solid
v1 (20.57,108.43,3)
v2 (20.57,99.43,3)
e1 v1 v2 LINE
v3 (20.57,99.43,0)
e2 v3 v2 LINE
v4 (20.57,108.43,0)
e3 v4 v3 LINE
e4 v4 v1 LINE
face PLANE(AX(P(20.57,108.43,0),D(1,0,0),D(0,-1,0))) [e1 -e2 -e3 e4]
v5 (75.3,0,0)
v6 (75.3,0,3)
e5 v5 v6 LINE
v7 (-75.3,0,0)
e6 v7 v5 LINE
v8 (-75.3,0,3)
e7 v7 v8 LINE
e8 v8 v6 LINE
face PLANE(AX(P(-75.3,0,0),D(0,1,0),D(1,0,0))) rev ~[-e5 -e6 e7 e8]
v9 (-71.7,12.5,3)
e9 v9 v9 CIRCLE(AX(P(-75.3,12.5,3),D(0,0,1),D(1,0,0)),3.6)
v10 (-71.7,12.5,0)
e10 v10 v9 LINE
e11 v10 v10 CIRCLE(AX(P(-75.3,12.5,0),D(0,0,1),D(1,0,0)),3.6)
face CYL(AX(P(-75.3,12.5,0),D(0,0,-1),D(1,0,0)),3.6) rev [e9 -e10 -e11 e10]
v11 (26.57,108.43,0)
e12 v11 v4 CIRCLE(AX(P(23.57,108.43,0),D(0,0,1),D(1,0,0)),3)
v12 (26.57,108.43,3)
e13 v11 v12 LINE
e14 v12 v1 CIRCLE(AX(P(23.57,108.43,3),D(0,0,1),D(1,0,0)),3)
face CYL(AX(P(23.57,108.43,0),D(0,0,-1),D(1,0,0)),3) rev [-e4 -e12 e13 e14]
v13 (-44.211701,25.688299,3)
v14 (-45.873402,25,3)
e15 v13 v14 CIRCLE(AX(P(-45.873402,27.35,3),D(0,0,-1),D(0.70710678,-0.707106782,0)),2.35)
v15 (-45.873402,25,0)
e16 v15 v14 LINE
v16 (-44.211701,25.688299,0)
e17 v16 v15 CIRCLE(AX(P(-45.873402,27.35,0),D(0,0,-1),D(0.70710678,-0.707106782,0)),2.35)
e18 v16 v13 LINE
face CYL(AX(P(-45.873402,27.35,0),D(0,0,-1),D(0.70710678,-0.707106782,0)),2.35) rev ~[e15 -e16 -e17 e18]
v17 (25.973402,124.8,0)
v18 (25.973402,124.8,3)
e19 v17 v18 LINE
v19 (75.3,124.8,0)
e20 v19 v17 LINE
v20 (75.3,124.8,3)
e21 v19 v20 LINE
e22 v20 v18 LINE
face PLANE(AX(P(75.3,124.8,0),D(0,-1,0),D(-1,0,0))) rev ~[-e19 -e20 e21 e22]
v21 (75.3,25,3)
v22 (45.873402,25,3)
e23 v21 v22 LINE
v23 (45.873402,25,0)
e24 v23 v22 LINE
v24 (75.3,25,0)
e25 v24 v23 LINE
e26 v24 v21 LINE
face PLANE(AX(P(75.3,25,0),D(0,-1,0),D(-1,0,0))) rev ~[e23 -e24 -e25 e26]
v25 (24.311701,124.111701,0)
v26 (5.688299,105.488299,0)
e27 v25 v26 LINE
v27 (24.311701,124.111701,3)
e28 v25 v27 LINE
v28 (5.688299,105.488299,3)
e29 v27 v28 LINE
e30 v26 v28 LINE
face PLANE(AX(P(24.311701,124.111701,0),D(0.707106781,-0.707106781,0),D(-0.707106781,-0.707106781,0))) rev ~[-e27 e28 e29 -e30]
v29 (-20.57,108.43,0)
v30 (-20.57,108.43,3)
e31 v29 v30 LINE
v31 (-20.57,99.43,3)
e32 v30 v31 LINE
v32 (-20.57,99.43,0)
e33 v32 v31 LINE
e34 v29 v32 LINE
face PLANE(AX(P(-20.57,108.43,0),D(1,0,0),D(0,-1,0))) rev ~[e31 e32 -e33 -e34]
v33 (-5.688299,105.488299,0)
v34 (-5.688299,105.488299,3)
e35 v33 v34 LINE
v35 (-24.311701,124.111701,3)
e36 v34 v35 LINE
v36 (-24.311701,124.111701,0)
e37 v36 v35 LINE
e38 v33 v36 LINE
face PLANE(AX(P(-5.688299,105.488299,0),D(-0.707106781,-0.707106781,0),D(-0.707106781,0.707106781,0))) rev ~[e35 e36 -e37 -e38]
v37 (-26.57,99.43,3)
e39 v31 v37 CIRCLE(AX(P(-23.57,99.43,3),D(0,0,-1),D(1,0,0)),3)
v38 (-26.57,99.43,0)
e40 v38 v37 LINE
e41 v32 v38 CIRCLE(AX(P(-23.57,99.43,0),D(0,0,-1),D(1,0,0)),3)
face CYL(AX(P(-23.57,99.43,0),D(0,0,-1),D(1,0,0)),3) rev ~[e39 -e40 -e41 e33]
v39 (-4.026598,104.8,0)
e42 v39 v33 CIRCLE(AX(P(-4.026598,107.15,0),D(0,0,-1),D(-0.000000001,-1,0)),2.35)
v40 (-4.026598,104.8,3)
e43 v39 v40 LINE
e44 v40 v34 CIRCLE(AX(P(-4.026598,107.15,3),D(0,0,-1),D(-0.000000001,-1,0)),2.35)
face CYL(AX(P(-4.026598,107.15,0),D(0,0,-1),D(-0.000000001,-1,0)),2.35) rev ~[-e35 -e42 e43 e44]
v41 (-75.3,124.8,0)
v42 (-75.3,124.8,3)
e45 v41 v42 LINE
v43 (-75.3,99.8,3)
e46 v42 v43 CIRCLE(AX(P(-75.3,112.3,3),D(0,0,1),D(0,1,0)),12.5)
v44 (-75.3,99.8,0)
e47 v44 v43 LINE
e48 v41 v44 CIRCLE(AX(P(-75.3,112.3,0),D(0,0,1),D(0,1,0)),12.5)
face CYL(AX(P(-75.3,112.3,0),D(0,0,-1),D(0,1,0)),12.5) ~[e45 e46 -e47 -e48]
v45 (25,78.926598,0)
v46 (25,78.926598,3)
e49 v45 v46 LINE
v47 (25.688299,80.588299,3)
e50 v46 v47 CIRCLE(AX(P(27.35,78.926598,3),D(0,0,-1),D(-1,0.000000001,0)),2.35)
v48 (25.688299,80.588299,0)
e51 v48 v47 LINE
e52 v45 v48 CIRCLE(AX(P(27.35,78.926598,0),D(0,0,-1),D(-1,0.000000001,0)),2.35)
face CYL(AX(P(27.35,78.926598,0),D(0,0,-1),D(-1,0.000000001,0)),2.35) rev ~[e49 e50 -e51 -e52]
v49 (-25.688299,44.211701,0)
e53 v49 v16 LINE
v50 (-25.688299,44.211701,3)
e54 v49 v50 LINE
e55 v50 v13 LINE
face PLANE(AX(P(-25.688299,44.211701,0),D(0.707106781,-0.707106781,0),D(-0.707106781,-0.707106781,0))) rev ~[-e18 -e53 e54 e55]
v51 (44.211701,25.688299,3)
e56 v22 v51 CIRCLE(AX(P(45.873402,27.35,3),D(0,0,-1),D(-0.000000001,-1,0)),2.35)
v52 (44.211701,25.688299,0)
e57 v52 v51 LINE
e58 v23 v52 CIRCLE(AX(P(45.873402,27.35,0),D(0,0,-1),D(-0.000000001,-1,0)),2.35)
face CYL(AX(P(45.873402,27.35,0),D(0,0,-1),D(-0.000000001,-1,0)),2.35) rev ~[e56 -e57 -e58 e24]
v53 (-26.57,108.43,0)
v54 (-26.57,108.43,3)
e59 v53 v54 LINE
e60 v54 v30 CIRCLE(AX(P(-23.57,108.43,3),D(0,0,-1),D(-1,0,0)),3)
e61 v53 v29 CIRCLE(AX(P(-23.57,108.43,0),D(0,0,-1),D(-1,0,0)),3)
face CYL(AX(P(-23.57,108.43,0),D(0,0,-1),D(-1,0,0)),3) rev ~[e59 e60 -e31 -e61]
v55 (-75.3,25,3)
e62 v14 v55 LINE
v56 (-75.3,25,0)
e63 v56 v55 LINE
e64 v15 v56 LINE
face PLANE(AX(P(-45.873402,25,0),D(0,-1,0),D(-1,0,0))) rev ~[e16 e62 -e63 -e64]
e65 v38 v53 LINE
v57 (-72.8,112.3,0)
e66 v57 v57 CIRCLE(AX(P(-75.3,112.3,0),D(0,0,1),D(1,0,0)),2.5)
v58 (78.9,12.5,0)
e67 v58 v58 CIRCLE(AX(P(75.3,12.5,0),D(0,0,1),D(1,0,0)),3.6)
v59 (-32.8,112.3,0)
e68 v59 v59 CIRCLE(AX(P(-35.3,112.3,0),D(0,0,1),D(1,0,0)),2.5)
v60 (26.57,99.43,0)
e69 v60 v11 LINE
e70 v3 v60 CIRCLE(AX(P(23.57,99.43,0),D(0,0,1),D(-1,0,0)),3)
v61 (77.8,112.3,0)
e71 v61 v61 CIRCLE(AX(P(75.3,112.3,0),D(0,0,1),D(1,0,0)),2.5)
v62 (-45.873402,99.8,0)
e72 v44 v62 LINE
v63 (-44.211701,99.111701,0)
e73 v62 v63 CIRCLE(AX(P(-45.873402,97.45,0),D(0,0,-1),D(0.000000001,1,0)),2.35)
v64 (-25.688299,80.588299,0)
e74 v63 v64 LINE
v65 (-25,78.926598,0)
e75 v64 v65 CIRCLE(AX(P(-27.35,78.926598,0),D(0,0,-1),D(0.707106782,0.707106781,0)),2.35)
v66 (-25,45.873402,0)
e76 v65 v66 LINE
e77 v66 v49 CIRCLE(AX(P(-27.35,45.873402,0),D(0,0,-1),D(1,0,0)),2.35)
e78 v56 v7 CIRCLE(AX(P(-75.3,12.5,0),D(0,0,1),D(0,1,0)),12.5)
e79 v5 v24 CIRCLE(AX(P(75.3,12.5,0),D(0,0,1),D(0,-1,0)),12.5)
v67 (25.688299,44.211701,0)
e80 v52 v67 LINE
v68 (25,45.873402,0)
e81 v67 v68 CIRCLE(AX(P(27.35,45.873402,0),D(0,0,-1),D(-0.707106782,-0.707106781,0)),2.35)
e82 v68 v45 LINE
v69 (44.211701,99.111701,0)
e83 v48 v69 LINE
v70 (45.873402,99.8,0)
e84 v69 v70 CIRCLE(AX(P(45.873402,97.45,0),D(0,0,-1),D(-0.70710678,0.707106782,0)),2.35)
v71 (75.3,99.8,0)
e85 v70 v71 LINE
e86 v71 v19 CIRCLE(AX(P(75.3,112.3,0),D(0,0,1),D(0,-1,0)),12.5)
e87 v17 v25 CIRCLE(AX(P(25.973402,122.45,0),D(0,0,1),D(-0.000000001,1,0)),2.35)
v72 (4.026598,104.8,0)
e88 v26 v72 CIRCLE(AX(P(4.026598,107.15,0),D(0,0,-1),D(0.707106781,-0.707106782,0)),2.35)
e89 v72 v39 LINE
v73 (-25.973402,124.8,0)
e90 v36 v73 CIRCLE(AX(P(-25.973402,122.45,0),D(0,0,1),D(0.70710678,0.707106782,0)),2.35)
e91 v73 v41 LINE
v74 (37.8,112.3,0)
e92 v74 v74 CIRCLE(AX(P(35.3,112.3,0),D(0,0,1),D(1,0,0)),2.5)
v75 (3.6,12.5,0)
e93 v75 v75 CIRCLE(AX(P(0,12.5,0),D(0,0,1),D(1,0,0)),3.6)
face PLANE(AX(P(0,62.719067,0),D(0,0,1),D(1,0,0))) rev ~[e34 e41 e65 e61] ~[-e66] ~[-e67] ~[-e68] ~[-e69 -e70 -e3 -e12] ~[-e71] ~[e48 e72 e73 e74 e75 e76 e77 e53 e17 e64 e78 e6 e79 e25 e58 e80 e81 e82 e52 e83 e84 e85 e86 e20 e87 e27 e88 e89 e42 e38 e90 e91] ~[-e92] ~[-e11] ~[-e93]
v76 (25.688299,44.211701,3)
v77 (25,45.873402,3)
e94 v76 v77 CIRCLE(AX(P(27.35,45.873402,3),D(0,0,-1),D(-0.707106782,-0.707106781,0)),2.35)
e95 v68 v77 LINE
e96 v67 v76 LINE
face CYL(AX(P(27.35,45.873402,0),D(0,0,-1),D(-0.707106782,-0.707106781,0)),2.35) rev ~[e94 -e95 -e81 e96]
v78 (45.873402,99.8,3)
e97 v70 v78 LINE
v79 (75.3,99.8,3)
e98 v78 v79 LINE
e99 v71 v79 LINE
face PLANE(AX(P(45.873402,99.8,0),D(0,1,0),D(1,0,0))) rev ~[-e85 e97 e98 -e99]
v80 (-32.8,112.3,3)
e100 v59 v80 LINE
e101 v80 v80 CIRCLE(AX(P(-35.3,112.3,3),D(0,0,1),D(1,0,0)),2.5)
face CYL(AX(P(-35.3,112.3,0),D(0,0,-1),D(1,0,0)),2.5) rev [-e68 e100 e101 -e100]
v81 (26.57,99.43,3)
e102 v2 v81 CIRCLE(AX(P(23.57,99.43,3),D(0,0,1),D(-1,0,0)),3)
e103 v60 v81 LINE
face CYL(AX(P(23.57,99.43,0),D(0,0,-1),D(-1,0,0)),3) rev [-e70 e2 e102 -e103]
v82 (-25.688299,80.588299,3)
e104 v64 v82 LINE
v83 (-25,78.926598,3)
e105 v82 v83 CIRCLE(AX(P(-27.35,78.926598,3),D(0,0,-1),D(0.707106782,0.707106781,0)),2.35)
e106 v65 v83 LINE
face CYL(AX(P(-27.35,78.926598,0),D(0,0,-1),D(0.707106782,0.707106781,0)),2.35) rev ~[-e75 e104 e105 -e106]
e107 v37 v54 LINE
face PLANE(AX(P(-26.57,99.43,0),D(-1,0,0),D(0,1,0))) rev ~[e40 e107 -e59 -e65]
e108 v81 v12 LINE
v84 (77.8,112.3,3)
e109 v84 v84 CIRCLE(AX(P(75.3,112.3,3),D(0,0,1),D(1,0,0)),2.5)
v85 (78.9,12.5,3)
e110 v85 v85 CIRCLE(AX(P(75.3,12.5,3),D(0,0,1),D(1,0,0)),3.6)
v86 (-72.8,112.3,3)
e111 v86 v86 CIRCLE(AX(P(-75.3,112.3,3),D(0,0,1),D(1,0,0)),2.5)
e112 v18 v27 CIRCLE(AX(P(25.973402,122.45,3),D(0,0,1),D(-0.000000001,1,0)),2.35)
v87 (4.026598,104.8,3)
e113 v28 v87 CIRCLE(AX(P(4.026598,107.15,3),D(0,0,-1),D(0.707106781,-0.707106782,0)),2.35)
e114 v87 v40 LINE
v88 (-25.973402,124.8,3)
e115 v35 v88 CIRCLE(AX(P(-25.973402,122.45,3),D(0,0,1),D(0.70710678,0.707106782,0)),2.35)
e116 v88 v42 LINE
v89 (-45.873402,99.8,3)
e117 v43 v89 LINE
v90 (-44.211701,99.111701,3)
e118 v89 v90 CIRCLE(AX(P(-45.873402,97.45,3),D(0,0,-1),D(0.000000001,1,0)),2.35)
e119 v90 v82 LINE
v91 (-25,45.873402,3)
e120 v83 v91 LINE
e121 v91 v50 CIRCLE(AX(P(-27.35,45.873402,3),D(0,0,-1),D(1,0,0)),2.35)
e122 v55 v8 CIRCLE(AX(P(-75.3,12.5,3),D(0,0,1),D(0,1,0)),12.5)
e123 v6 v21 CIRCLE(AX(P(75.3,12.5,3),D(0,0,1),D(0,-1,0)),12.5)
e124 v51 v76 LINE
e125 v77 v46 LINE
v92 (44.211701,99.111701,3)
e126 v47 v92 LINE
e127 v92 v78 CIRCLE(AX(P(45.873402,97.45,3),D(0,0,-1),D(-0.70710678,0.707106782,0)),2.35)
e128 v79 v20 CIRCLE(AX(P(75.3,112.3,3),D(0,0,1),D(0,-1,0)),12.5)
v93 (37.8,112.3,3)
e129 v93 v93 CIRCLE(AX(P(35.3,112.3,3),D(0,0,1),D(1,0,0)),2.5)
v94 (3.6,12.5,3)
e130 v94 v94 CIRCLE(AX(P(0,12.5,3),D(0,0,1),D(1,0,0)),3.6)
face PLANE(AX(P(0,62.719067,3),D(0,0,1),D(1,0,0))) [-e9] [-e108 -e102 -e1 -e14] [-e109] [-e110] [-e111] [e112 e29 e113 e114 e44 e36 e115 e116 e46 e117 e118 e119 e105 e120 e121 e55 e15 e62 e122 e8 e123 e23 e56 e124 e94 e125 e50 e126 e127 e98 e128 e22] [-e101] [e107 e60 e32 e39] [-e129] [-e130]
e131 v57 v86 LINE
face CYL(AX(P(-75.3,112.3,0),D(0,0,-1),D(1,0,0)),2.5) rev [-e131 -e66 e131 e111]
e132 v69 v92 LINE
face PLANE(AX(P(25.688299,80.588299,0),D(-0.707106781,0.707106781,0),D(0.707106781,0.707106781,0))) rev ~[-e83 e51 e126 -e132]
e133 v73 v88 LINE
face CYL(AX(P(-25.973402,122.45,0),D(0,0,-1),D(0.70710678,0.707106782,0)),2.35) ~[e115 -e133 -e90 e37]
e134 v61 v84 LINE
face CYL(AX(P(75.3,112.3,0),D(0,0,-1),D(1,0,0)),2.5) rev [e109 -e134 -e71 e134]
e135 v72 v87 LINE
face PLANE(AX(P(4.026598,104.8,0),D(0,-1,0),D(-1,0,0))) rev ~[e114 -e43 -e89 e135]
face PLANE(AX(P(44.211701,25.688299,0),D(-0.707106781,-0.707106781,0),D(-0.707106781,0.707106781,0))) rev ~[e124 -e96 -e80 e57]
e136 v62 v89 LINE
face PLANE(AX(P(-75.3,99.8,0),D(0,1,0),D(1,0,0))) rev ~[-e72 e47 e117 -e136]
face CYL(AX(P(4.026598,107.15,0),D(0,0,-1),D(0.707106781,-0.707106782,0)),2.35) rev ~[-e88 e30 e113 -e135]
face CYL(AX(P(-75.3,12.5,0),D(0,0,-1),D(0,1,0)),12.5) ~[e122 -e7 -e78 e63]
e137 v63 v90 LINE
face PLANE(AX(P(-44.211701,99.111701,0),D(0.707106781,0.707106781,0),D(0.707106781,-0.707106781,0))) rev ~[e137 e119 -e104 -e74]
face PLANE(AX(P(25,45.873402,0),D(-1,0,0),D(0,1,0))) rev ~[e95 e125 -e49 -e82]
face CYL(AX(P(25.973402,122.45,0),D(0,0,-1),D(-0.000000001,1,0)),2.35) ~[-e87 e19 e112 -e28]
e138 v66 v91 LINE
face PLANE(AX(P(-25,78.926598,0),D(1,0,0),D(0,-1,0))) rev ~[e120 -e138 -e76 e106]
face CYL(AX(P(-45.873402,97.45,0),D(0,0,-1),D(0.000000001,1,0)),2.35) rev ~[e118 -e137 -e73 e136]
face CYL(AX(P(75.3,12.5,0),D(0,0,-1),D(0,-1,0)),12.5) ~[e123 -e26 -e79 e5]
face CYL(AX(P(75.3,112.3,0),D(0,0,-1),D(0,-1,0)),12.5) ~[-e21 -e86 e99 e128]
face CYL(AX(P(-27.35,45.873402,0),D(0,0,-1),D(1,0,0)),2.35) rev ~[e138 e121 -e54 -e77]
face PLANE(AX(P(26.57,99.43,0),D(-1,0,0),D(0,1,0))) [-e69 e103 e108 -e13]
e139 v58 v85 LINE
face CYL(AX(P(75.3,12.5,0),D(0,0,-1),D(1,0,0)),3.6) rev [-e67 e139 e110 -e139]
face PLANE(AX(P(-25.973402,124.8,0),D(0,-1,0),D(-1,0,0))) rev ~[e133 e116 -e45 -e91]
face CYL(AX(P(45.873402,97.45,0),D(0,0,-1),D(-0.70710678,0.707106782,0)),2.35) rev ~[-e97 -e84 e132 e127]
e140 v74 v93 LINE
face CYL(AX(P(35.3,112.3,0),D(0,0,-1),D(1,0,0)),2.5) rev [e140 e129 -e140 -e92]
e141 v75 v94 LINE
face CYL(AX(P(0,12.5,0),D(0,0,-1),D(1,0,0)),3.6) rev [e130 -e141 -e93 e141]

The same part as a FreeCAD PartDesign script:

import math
import FreeCAD as App
import Part
import Sketcher

V = App.Vector

doc = App.newDocument("Part")
body = doc.addObject("PartDesign::Body", "Body")

# Sketch on XY plane
sketch1 = body.newObject("Sketcher::SketchObject", "Sketch")
sketch1.AttachmentSupport = (doc.getObject("XY_Plane"), [""])
sketch1.MapMode = "FlatFace"
sketch1.addGeometry([
    Part.LineSegment(V(-75.3, 0, 0), V(75.3, 0, 0)),  # 0
    Part.ArcOfCircle(Part.Circle(V(75.3, 12.5, 0), V(0, 0, 1), 12.5), math.radians(-90), math.radians(90)),  # 1
    Part.LineSegment(V(75.3, 25, 0), V(45.873402, 25, 0)),  # 2
    Part.ArcOfCircle(Part.Circle(V(45.873402, 27.35, 0), V(0, 0, 1), 2.35), math.radians(-135), math.radians(-90)),  # 3
    Part.LineSegment(V(44.211701, 25.688299, 0), V(25.688299, 44.211701, 0)),  # 4
    Part.ArcOfCircle(Part.Circle(V(27.35, 45.873402, 0), V(0, 0, 1), 2.35), math.radians(180), math.radians(225)),  # 5
    Part.LineSegment(V(25, 45.873402, 0), V(25, 78.926598, 0)),  # 6
    Part.ArcOfCircle(Part.Circle(V(27.35, 78.926598, 0), V(0, 0, 1), 2.35), math.radians(135), math.radians(180)),  # 7
    Part.LineSegment(V(25.688299, 80.588299, 0), V(44.211701, 99.111701, 0)),  # 8
    Part.ArcOfCircle(Part.Circle(V(45.873402, 97.45, 0), V(0, 0, 1), 2.35), math.radians(90), math.radians(135)),  # 9
    Part.LineSegment(V(45.873402, 99.8, 0), V(75.3, 99.8, 0)),  # 10
    Part.ArcOfCircle(Part.Circle(V(75.3, 112.3, 0), V(0, 0, 1), 12.5), math.radians(-90), math.radians(90)),  # 11
    Part.LineSegment(V(75.3, 124.8, 0), V(25.973402, 124.8, 0)),  # 12
    Part.ArcOfCircle(Part.Circle(V(25.973402, 122.45, 0), V(0, 0, 1), 2.35), math.radians(90), math.radians(135)),  # 13
    Part.LineSegment(V(24.311701, 124.111701, 0), V(5.688299, 105.488299, 0)),  # 14
    Part.ArcOfCircle(Part.Circle(V(4.026598, 107.15, 0), V(0, 0, 1), 2.35), math.radians(-90), math.radians(-45)),  # 15
    Part.LineSegment(V(4.026598, 104.8, 0), V(-4.026598, 104.8, 0)),  # 16
    Part.ArcOfCircle(Part.Circle(V(-4.026598, 107.15, 0), V(0, 0, 1), 2.35), math.radians(-135), math.radians(-90)),  # 17
    Part.LineSegment(V(-5.688299, 105.488299, 0), V(-24.311701, 124.111701, 0)),  # 18
    Part.ArcOfCircle(Part.Circle(V(-25.973402, 122.45, 0), V(0, 0, 1), 2.35), math.radians(45), math.radians(90)),  # 19
    Part.LineSegment(V(-25.973402, 124.8, 0), V(-75.3, 124.8, 0)),  # 20
    Part.ArcOfCircle(Part.Circle(V(-75.3, 112.3, 0), V(0, 0, 1), 12.5), math.radians(90), math.radians(270)),  # 21
    Part.LineSegment(V(-75.3, 99.8, 0), V(-45.873402, 99.8, 0)),  # 22
    Part.ArcOfCircle(Part.Circle(V(-45.873402, 97.45, 0), V(0, 0, 1), 2.35), math.radians(45), math.radians(90)),  # 23
    Part.LineSegment(V(-44.211701, 99.111701, 0), V(-25.688299, 80.588299, 0)),  # 24
    Part.ArcOfCircle(Part.Circle(V(-27.35, 78.926598, 0), V(0, 0, 1), 2.35), math.radians(0), math.radians(45)),  # 25
    Part.LineSegment(V(-25, 78.926598, 0), V(-25, 45.873402, 0)),  # 26
    Part.ArcOfCircle(Part.Circle(V(-27.35, 45.873402, 0), V(0, 0, 1), 2.35), math.radians(-45), math.radians(0)),  # 27
    Part.LineSegment(V(-25.688299, 44.211701, 0), V(-44.211701, 25.688299, 0)),  # 28
    Part.ArcOfCircle(Part.Circle(V(-45.873402, 27.35, 0), V(0, 0, 1), 2.35), math.radians(-90), math.radians(-45)),  # 29
    Part.LineSegment(V(-45.873402, 25, 0), V(-75.3, 25, 0)),  # 30
    Part.ArcOfCircle(Part.Circle(V(-75.3, 12.5, 0), V(0, 0, 1), 12.5), math.radians(90), math.radians(270)),  # 31
    Part.Circle(V(-75.3, 12.5, 0), V(0, 0, 1), 3.6),  # 32
    Part.Circle(V(0, 12.5, 0), V(0, 0, 1), 3.6),  # 33
    Part.Circle(V(75.3, 12.5, 0), V(0, 0, 1), 3.6),  # 34
    Part.Circle(V(-75.3, 112.3, 0), V(0, 0, 1), 2.5),  # 35
    Part.ArcOfCircle(Part.Circle(V(-23.57, 99.43, 0), V(0, 0, 1), 3), math.radians(180), math.radians(360)),  # 36
    Part.LineSegment(V(-26.57, 99.43, 0), V(-26.57, 108.43, 0)),  # 37
    Part.ArcOfCircle(Part.Circle(V(-23.57, 108.43, 0), V(0, 0, 1), 3), math.radians(0), math.radians(180)),  # 38
    Part.LineSegment(V(-20.57, 108.43, 0), V(-20.57, 99.43, 0)),  # 39
    Part.Circle(V(-35.3, 112.3, 0), V(0, 0, 1), 2.5),  # 40
    Part.LineSegment(V(26.57, 108.43, 0), V(26.57, 99.43, 0)),  # 41
    Part.ArcOfCircle(Part.Circle(V(23.57, 99.43, 0), V(0, 0, 1), 3), math.radians(180), math.radians(360)),  # 42
    Part.LineSegment(V(20.57, 99.43, 0), V(20.57, 108.43, 0)),  # 43
    Part.ArcOfCircle(Part.Circle(V(23.57, 108.43, 0), V(0, 0, 1), 3), math.radians(0), math.radians(180)),  # 44
    Part.Circle(V(35.3, 112.3, 0), V(0, 0, 1), 2.5),  # 45
    Part.Circle(V(75.3, 112.3, 0), V(0, 0, 1), 2.5),  # 46
], False)
sketch1.addConstraint([
    Sketcher.Constraint("Tangent", 0, 2, 1, 1),
    Sketcher.Constraint("Tangent", 1, 2, 2, 1),
    Sketcher.Constraint("Tangent", 2, 2, 3, 2),
    Sketcher.Constraint("Tangent", 3, 1, 4, 1),
    Sketcher.Constraint("Tangent", 4, 2, 5, 2),
    Sketcher.Constraint("Tangent", 5, 1, 6, 1),
    Sketcher.Constraint("Tangent", 6, 2, 7, 2),
    Sketcher.Constraint("Tangent", 7, 1, 8, 1),
    Sketcher.Constraint("Tangent", 8, 2, 9, 2),
    Sketcher.Constraint("Tangent", 9, 1, 10, 1),
    Sketcher.Constraint("Tangent", 10, 2, 11, 1),
    Sketcher.Constraint("Tangent", 11, 2, 12, 1),
    Sketcher.Constraint("Tangent", 12, 2, 13, 1),
    Sketcher.Constraint("Tangent", 13, 2, 14, 1),
    Sketcher.Constraint("Tangent", 14, 2, 15, 2),
    Sketcher.Constraint("Tangent", 15, 1, 16, 1),
    Sketcher.Constraint("Tangent", 16, 2, 17, 2),
    Sketcher.Constraint("Tangent", 17, 1, 18, 1),
    Sketcher.Constraint("Tangent", 18, 2, 19, 1),
    Sketcher.Constraint("Tangent", 19, 2, 20, 1),
    Sketcher.Constraint("Tangent", 20, 2, 21, 1),
    Sketcher.Constraint("Tangent", 21, 2, 22, 1),
    Sketcher.Constraint("Tangent", 22, 2, 23, 2),
    Sketcher.Constraint("Tangent", 23, 1, 24, 1),
    Sketcher.Constraint("Tangent", 24, 2, 25, 2),
    Sketcher.Constraint("Tangent", 25, 1, 26, 1),
    Sketcher.Constraint("Tangent", 26, 2, 27, 2),
    Sketcher.Constraint("Tangent", 27, 1, 28, 1),
    Sketcher.Constraint("Tangent", 28, 2, 29, 2),
    Sketcher.Constraint("Tangent", 29, 1, 30, 1),
    Sketcher.Constraint("Tangent", 30, 2, 31, 1),
    Sketcher.Constraint("Tangent", 31, 2, 0, 1),
    Sketcher.Constraint("Tangent", 36, 1, 37, 1),
    Sketcher.Constraint("Tangent", 37, 2, 38, 2),
    Sketcher.Constraint("Tangent", 38, 1, 39, 1),
    Sketcher.Constraint("Tangent", 39, 2, 36, 2),
    Sketcher.Constraint("Tangent", 41, 2, 42, 2),
    Sketcher.Constraint("Tangent", 42, 1, 43, 1),
    Sketcher.Constraint("Tangent", 43, 2, 44, 2),
    Sketcher.Constraint("Tangent", 44, 1, 41, 1),
    Sketcher.Constraint("Horizontal", 0),
    Sketcher.Constraint("Horizontal", 2),
    Sketcher.Constraint("Vertical", 6),
    Sketcher.Constraint("Horizontal", 10),
    Sketcher.Constraint("Horizontal", 12),
    Sketcher.Constraint("Horizontal", 16),
    Sketcher.Constraint("Horizontal", 20),
    Sketcher.Constraint("Horizontal", 22),
    Sketcher.Constraint("Vertical", 26),
    Sketcher.Constraint("Horizontal", 30),
    Sketcher.Constraint("Vertical", 37),
    Sketcher.Constraint("Vertical", 39),
    Sketcher.Constraint("Vertical", 41),
    Sketcher.Constraint("Vertical", 43),
    Sketcher.Constraint("Coincident", 32, 3, 31, 3),
    Sketcher.Constraint("Coincident", 34, 3, 1, 3),
    Sketcher.Constraint("Coincident", 35, 3, 21, 3),
    Sketcher.Constraint("Coincident", 46, 3, 11, 3),
    Sketcher.Constraint("Equal", 3, 5),
    Sketcher.Constraint("Equal", 5, 7),
    Sketcher.Constraint("Equal", 7, 9),
    Sketcher.Constraint("Equal", 1, 11),
    Sketcher.Constraint("Equal", 9, 13),
    Sketcher.Constraint("Equal", 13, 15),
    Sketcher.Constraint("Equal", 15, 17),
    Sketcher.Constraint("Equal", 17, 19),
    Sketcher.Constraint("Equal", 11, 21),
    Sketcher.Constraint("Equal", 19, 23),
    Sketcher.Constraint("Equal", 23, 25),
    Sketcher.Constraint("Equal", 25, 27),
    Sketcher.Constraint("Equal", 27, 29),
    Sketcher.Constraint("Equal", 21, 31),
    Sketcher.Constraint("Equal", 32, 33),
    Sketcher.Constraint("Equal", 33, 34),
    Sketcher.Constraint("Equal", 35, 40),
    Sketcher.Constraint("Equal", 38, 42),
    Sketcher.Constraint("Equal", 40, 45),
    Sketcher.Constraint("Equal", 45, 46),
    Sketcher.Constraint("Symmetric", 0, 2, 31, 2, -1, 1),
    Sketcher.Constraint("Symmetric", 13, 3, 19, 3, -2),
    Sketcher.Constraint("Symmetric", 7, 3, 25, 3, -2),
    Sketcher.Constraint("Symmetric", 36, 3, 42, 3, -2),
    Sketcher.Constraint("Symmetric", 40, 3, 45, 3, -2),
    Sketcher.Constraint("Symmetric", 4, 2, 27, 1, -2),
    Sketcher.Constraint("PointOnObject", 33, 3, -2),
    Sketcher.Constraint("Perpendicular", 4, 8),
    Sketcher.Constraint("Parallel", 8, 14),
    Sketcher.Constraint("Perpendicular", 14, 18),
    Sketcher.Constraint("Parallel", 18, 24),
    Sketcher.Constraint("Perpendicular", 24, 28),
    Sketcher.Constraint("Horizontal", 32, 3, 33, 3),
    Sketcher.Constraint("Horizontal", 35, 3, 40, 3),
    Sketcher.Constraint("Horizontal", 38, 3, 44, 3),
    Sketcher.Constraint("Vertical", 3, 3, 9, 3),
    Sketcher.Constraint("Vertical", 1, 3, 11, 3),
    Sketcher.Constraint("Vertical", 21, 3, 31, 3),
    Sketcher.Constraint("Diameter", 35, 5.0),
    Sketcher.Constraint("Radius", 36, 3.0),
    Sketcher.Constraint("Diameter", 32, 7.2),
    Sketcher.Constraint("Radius", 1, 12.5),
    Sketcher.Constraint("DistanceY", 37, 1, 37, 2, 9.0),
    Sketcher.Constraint("Radius", 3, 2.35),
    Sketcher.Constraint("DistanceX", 0, 1, 0, 2, 150.6),
    Sketcher.Constraint("DistanceX", -1, 1, 5, 1, 25.0),
    Sketcher.Constraint("DistanceY", -1, 1, 11, 3, 112.3),
    Sketcher.Constraint("DistanceX", 40, 3, -1, 1, 35.3),
    Sketcher.Constraint("DistanceY", -1, 1, 15, 1, 104.8),
    Sketcher.Constraint("DistanceX", 36, 3, -1, 1, 23.57),
    Sketcher.Constraint("DistanceY", -1, 1, 36, 3, 99.43),
    Sketcher.Constraint("DistanceX", 2, 2, 2, 1, 29.426598),
    Sketcher.Constraint("DistanceX", 12, 2, 12, 1, 49.326598),
])
pad1 = body.newObject("PartDesign::Pad", "Pad")
pad1.Profile = sketch1
pad1.Length = 3

doc.recompute()
